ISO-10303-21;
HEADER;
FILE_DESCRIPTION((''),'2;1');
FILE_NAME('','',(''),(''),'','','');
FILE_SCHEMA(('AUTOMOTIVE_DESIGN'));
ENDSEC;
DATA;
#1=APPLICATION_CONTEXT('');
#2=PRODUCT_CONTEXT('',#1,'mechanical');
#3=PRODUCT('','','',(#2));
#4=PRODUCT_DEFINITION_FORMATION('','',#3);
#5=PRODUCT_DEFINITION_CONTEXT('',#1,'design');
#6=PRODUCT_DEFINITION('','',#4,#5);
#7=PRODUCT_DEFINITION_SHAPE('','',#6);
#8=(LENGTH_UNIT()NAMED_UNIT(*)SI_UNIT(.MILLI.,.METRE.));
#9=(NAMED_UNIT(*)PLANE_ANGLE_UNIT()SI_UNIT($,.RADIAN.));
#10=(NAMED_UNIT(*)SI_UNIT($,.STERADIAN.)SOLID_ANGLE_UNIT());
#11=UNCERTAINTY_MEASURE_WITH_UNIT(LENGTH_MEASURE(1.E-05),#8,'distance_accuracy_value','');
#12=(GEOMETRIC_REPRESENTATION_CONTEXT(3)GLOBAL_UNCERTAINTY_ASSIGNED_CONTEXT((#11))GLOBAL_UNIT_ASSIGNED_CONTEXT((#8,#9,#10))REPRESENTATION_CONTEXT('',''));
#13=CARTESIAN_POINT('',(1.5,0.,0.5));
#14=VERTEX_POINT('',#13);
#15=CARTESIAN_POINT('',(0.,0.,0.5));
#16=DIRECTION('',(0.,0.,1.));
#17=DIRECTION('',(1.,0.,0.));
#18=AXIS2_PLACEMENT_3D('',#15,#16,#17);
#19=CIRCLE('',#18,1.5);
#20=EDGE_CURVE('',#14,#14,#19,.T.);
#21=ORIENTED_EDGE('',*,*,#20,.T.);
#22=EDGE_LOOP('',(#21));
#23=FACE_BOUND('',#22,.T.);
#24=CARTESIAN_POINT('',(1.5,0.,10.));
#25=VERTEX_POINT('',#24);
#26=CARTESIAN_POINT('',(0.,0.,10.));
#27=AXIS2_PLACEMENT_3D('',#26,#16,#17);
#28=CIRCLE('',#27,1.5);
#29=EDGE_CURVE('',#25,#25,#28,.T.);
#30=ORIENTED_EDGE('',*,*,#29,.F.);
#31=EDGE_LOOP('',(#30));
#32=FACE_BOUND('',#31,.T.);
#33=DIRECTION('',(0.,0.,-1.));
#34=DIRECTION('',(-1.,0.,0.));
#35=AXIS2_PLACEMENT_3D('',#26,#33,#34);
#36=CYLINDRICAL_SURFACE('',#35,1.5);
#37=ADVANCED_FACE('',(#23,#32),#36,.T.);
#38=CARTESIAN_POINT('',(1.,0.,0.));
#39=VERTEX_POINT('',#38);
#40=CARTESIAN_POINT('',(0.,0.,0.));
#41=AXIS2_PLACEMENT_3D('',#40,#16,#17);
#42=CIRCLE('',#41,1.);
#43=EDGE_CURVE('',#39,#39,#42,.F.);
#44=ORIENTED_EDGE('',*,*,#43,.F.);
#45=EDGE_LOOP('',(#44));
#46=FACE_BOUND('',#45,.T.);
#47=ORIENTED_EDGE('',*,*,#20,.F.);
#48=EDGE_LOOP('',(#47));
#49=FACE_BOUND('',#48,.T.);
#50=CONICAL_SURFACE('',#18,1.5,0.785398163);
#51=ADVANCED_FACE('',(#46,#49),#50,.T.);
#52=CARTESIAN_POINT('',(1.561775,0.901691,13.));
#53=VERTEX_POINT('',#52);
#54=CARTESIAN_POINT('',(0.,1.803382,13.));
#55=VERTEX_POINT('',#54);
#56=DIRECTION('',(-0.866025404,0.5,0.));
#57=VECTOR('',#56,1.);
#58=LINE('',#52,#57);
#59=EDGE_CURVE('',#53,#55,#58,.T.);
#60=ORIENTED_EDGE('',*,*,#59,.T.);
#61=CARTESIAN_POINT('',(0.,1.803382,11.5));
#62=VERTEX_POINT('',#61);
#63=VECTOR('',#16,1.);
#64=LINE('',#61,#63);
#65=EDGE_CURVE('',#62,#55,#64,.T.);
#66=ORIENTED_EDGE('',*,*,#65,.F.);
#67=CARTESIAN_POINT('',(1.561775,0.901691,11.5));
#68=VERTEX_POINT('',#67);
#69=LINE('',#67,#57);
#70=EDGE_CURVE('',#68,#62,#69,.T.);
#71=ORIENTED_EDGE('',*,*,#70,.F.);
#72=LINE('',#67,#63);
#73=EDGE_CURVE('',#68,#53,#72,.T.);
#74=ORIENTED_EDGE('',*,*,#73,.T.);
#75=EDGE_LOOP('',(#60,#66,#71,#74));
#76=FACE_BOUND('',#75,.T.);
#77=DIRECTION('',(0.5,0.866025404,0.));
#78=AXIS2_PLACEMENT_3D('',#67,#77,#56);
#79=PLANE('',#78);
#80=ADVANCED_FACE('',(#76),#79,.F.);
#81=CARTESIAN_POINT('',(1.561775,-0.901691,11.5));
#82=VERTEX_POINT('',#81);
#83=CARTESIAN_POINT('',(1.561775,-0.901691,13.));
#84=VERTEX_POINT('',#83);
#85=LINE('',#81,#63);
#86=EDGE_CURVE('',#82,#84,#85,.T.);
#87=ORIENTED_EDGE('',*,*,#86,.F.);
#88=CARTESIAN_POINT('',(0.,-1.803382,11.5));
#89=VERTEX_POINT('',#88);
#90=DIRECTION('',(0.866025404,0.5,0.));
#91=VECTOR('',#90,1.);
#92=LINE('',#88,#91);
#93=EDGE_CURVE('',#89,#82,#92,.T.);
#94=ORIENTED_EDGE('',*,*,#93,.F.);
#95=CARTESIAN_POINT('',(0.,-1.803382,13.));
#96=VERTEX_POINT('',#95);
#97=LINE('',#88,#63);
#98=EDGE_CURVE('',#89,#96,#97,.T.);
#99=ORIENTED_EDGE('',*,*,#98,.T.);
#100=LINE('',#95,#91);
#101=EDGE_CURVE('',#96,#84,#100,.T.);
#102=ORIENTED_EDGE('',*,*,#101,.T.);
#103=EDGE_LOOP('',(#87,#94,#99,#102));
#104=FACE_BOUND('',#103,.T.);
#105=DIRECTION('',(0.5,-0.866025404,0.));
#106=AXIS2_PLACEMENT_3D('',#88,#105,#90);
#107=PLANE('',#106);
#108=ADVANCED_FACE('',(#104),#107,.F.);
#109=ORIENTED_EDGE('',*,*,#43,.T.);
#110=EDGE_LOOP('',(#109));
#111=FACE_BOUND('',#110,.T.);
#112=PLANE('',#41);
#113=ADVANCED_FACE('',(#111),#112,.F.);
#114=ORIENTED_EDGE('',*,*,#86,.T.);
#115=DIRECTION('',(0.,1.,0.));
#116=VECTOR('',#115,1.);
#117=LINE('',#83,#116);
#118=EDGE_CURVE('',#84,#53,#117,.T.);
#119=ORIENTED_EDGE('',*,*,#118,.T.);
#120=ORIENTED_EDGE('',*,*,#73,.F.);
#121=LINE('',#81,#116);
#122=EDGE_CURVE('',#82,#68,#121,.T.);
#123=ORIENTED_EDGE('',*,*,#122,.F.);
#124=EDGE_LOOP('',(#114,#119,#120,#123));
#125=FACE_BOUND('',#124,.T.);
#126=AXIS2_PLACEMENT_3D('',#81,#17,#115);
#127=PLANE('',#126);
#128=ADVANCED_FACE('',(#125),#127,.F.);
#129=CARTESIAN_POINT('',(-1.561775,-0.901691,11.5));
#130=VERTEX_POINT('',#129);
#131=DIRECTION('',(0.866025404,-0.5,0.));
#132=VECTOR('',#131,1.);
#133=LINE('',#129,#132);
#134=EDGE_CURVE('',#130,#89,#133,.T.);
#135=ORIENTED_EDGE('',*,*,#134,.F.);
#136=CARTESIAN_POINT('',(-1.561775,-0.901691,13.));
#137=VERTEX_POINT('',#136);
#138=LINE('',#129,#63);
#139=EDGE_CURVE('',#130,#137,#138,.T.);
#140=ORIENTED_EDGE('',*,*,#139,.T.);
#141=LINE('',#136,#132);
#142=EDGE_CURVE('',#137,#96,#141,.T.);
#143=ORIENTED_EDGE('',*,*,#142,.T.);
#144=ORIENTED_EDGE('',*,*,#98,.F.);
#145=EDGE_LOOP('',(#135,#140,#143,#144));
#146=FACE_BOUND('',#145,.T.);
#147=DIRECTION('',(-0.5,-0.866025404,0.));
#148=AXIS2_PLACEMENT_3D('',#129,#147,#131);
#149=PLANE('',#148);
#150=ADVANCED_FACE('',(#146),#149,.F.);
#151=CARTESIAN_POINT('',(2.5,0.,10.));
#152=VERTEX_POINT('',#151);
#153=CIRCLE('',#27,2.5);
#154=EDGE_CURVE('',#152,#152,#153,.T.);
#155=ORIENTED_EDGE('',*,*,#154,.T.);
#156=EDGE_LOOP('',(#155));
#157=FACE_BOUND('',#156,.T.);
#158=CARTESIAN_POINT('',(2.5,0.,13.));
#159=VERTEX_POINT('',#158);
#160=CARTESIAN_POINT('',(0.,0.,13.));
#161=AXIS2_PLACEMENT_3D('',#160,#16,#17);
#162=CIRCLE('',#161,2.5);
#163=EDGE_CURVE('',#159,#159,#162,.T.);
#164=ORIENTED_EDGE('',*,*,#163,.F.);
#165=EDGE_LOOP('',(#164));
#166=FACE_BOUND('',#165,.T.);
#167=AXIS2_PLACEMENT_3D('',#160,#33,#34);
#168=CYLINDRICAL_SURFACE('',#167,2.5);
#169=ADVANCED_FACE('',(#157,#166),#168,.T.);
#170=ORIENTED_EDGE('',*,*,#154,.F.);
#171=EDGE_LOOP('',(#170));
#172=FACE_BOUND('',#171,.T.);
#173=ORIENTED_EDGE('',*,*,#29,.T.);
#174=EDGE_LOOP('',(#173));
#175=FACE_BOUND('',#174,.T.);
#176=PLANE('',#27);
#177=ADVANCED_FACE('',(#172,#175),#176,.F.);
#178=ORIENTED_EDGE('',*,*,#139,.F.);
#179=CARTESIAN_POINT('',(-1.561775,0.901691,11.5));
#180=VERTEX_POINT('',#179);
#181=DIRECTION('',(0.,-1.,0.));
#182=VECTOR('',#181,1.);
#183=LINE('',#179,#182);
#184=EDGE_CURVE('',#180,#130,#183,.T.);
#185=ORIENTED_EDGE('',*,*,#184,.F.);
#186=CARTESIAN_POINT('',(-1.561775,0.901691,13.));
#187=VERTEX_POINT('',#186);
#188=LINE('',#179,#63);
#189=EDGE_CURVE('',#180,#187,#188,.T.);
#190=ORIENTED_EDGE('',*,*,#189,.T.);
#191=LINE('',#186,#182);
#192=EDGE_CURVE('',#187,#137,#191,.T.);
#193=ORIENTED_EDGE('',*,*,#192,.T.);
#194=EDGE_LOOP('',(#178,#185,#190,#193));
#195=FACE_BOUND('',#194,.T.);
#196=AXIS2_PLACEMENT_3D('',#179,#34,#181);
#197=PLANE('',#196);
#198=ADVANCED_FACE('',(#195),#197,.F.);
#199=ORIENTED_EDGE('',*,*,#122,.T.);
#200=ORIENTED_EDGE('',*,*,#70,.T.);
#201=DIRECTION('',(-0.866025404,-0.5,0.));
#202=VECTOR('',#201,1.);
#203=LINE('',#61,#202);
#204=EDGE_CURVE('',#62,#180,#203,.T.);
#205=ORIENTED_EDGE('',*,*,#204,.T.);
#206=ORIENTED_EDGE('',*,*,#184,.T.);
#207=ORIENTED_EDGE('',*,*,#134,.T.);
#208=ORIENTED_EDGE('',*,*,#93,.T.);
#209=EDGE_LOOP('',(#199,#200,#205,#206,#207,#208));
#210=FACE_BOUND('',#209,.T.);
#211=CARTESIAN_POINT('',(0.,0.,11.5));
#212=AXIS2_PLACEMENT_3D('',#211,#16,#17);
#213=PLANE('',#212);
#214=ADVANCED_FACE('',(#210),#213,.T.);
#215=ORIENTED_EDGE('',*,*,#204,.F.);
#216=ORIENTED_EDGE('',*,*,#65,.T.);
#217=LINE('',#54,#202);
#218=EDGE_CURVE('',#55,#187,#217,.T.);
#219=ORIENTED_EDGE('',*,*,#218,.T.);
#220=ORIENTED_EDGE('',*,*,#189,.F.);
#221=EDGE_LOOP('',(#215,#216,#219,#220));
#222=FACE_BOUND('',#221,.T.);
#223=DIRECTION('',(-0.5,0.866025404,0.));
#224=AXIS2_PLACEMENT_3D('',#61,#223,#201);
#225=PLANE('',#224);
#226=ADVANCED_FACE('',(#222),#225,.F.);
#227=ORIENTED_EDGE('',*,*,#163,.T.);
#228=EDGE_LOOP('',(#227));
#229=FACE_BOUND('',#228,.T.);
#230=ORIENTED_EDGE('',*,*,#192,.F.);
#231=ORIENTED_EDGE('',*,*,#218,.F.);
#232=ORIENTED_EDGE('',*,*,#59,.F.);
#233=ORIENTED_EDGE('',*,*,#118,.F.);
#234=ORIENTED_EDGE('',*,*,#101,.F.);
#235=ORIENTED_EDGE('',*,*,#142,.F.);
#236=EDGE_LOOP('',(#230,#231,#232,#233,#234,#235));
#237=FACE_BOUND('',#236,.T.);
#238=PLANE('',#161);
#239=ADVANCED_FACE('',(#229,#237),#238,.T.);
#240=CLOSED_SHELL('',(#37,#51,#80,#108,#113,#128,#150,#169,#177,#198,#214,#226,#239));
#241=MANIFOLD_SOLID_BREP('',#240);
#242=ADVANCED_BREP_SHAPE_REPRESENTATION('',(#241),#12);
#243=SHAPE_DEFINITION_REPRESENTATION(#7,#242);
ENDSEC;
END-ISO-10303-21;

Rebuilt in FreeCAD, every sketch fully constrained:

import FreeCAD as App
import Part
import Sketcher

V = App.Vector
Q = App.Units.Quantity


def edges_at(feature, points):
    """Names of the edges that pass closest to the given points."""
    edges = feature.Shape.Edges
    near = lambda p: min(range(len(edges)), key=lambda i: edges[i].distToShape(Part.Vertex(*p))[0])
    return sorted({f"Edge{near(p) + 1}" for p in points})


def add_polygon(sketch, points):
    """Adds a closed chain of lines whose ends are joined by coincident constraints."""
    first, n = sketch.GeometryCount, len(points)
    for a, b in zip(points, points[1:] + points[:1]):
        sketch.addGeometry(Part.LineSegment(App.Vector(*a, 0), App.Vector(*b, 0)), False)
    for i in range(n):
        sketch.addConstraint(Sketcher.Constraint("Coincident", first + i, 2, first + (i + 1) % n, 1))

doc = App.newDocument("Part")
body = doc.addObject("PartDesign::Body", "Body")

sketch1 = doc.addObject("Sketcher::SketchObject", "Sketch")
body.addObject(sketch1)
sketch1.AttachmentSupport = (doc.XY_Plane, [""])
sketch1.MapMode = "FlatFace"
sketch1.addGeometry(Part.Circle(V(0, 0, 0), V(0, 0, 1), 1.5), False)
sketch1.addConstraint(Sketcher.Constraint("Coincident", 0, 3, -1, 1))
sketch1.addConstraint(Sketcher.Constraint("Diameter", 0, Q("3 mm")))
pad1 = doc.addObject("PartDesign::Pad", "Pad")
body.addObject(pad1)
pad1.Profile = sketch1
pad1.Length = 10

sketch2 = doc.addObject("Sketcher::SketchObject", "Sketch001")
body.addObject(sketch2)
sketch2.AttachmentSupport = (doc.XY_Plane, [""])
sketch2.MapMode = "FlatFace"
sketch2.AttachmentOffset = App.Placement(V(0, 0, 10), App.Rotation())
sketch2.addGeometry(Part.Circle(V(0, 0, 0), V(0, 0, 1), 2.5), False)
sketch2.addConstraint(Sketcher.Constraint("Coincident", 0, 3, -1, 1))
sketch2.addConstraint(Sketcher.Constraint("Diameter", 0, Q("5 mm")))
pad2 = doc.addObject("PartDesign::Pad", "Pad001")
body.addObject(pad2)
pad2.Profile = sketch2
pad2.Length = 3

sketch3 = doc.addObject("Sketcher::SketchObject", "Sketch002")
body.addObject(sketch3)
sketch3.AttachmentSupport = (doc.XY_Plane, [""])
sketch3.MapMode = "FlatFace"
sketch3.AttachmentOffset = App.Placement(V(0, 0, 13), App.Rotation())
add_polygon(sketch3, [(0, 1.8), (-1.6, 0.9), (-1.6, -0.9), (0, -1.8), (1.6, -0.9), (1.6, 0.9)])
sketch3.addConstraint(Sketcher.Constraint("Vertical", 1))
sketch3.addConstraint(Sketcher.Constraint("Vertical", 4))
sketch3.addConstraint(Sketcher.Constraint("Symmetric", 0, 2, 3, 2, -1, 1))
sketch3.addConstraint(Sketcher.Constraint("Symmetric", 2, 2, 5, 2, -1, 1))
sketch3.addConstraint(Sketcher.Constraint("PointOnObject", 2, 2, -2))
sketch3.addConstraint(Sketcher.Constraint("Parallel", 2, 5))
sketch3.addConstraint(Sketcher.Constraint("Horizontal", 1, 2, 3, 2))
sketch3.addConstraint(Sketcher.Constraint("Angle", 0, Q("-150 deg")))
sketch3.addConstraint(Sketcher.Constraint("DistanceY", 1, 2, 1, 1, Q("1.803382 mm")))
sketch3.addConstraint(Sketcher.Constraint("DistanceY", 2, 2, 1, 2, Q("0.901691 mm")))
pocket1 = doc.addObject("PartDesign::Pocket", "Pocket")
body.addObject(pocket1)
pocket1.Profile = sketch3
pocket1.Length = 1.5
doc.recompute()

chamfer = doc.addObject("PartDesign::Chamfer", "Chamfer")
body.addObject(chamfer)
chamfer.Base = (pocket1, edges_at(pocket1, [(-1.5, 0, 0)]))
chamfer.Size = 0.5

doc.recompute()
